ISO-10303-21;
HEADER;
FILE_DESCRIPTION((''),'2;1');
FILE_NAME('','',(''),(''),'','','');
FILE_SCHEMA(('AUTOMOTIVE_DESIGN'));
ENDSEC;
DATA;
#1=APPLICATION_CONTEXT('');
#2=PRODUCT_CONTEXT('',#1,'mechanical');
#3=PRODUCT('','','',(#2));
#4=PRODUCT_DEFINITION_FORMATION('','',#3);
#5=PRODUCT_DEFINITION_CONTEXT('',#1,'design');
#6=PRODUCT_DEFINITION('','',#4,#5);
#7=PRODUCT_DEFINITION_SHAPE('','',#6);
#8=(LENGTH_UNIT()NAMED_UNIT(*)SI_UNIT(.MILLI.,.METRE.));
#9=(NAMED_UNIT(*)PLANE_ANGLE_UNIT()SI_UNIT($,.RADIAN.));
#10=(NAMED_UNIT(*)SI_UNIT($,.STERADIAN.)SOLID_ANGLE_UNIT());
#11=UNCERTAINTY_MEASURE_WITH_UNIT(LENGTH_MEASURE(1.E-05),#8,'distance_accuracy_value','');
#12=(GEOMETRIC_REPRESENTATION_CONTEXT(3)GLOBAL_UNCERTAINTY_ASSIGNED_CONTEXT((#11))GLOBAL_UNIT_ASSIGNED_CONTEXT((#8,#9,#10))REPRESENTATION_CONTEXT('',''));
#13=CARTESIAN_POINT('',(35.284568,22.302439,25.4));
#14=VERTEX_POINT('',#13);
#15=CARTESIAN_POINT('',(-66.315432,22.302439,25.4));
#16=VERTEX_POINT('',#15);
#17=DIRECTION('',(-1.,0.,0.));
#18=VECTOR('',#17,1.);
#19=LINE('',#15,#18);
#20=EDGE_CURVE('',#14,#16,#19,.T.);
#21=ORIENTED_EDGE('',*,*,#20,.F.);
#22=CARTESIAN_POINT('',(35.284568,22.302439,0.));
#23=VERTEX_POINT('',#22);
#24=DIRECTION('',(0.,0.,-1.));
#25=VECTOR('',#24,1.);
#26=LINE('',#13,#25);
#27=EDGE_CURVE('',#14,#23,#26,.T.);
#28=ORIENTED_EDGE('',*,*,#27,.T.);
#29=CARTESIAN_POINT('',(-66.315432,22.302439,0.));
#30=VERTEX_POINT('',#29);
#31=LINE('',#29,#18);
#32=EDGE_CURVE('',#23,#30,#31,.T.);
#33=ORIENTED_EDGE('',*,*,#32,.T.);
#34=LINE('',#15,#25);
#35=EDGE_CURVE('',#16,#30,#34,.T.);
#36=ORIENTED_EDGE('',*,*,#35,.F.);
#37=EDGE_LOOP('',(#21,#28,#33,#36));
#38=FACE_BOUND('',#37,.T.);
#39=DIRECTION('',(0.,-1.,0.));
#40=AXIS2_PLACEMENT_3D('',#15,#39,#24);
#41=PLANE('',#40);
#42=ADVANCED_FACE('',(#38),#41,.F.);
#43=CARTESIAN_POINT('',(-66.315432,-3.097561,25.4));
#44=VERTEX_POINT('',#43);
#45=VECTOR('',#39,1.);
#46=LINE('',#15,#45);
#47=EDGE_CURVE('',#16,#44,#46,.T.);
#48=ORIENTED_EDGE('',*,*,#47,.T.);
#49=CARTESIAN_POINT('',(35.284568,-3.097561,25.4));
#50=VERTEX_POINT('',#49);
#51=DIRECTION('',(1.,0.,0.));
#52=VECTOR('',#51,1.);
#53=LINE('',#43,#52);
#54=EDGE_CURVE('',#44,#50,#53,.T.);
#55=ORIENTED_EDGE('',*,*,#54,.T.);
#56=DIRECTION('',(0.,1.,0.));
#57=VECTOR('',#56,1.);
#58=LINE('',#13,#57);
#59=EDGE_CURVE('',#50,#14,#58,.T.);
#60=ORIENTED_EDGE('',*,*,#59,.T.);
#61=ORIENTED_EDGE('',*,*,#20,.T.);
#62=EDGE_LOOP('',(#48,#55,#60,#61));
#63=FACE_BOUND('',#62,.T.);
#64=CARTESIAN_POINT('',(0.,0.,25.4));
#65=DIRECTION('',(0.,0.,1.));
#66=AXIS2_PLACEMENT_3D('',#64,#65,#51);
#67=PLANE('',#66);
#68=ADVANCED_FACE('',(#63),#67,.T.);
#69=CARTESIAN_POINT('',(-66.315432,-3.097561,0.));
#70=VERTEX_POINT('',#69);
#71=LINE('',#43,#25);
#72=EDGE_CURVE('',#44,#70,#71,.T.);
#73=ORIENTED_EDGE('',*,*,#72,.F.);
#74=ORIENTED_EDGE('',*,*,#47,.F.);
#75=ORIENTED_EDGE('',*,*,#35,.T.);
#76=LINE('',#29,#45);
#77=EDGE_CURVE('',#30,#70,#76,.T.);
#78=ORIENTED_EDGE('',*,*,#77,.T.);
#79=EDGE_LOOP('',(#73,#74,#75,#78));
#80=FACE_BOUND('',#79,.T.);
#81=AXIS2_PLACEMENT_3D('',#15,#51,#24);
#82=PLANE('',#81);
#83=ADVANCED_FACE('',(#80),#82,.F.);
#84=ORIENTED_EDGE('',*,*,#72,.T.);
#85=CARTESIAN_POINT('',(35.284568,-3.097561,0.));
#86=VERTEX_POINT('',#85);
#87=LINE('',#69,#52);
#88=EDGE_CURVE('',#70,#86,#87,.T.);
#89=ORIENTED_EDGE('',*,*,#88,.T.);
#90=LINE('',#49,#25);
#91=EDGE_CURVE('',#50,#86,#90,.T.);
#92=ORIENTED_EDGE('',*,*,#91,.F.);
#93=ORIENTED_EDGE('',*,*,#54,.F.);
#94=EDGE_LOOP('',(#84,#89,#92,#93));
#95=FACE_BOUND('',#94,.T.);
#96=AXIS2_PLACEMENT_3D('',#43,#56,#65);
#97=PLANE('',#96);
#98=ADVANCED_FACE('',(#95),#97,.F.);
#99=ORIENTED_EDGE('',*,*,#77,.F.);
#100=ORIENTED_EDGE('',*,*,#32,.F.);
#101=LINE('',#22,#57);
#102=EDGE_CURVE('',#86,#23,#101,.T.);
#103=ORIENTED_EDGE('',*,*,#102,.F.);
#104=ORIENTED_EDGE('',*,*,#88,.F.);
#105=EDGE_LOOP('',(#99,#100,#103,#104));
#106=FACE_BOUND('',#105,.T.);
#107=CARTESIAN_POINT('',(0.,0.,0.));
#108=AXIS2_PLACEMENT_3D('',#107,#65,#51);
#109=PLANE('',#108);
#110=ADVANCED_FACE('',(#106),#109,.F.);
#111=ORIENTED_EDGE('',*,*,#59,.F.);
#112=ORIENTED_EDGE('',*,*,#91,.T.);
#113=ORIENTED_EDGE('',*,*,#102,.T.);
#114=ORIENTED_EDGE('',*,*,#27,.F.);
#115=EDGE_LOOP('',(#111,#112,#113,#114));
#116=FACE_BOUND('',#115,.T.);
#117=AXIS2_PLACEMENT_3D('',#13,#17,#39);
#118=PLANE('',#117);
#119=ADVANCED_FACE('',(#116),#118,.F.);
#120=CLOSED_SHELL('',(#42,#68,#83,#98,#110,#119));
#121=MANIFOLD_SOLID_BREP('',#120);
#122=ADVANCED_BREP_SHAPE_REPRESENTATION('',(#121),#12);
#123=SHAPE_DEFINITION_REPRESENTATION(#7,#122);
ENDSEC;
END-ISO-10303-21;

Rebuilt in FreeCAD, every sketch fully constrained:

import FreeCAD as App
import Part
import Sketcher
from FreeCAD import Vector
Q = App.Units.Quantity

doc = App.newDocument("Part")
body = doc.addObject("PartDesign::Body", "Body")

sketch1 = body.newObject("Sketcher::SketchObject", "Sketch")
sketch1.AttachmentSupport = (doc.getObject("XY_Plane"), [""])
sketch1.MapMode = "FlatFace"
sketch1.addGeometry([
    Part.LineSegment(Vector(-66.315432, 22.302439, 0), Vector(-66.315432, -3.097561, 0)),
    Part.LineSegment(Vector(-66.315432, -3.097561, 0), Vector(35.284568, -3.097561, 0)),
    Part.LineSegment(Vector(35.284568, -3.097561, 0), Vector(35.284568, 22.302439, 0)),
    Part.LineSegment(Vector(35.284568, 22.302439, 0), Vector(-66.315432, 22.302439, 0)),
], False)
sketch1.addConstraint([
    Sketcher.Constraint("Coincident", 0, 2, 1, 1),
    Sketcher.Constraint("Coincident", 1, 2, 2, 1),
    Sketcher.Constraint("Coincident", 2, 2, 3, 1),
    Sketcher.Constraint("Coincident", 3, 2, 0, 1),
    Sketcher.Constraint("Vertical", 0),
    Sketcher.Constraint("Horizontal", 1),
    Sketcher.Constraint("Vertical", 2),
    Sketcher.Constraint("Horizontal", 3),
    Sketcher.Constraint("DistanceX", 1, 1, 1, 2, Q("4 in")),
    Sketcher.Constraint("DistanceY", 0, 2, 0, 1, Q("1 in")),
    Sketcher.Constraint("DistanceX", 0, 2, -1, 1, Q("66.315432 mm")),
    Sketcher.Constraint("DistanceY", 0, 2, -1, 1, Q("3.097561 mm")),
])
pad1 = body.newObject("PartDesign::Pad", "Pad")
pad1.Profile = sketch1
pad1.Length = Q("1 in")

doc.recompute()
